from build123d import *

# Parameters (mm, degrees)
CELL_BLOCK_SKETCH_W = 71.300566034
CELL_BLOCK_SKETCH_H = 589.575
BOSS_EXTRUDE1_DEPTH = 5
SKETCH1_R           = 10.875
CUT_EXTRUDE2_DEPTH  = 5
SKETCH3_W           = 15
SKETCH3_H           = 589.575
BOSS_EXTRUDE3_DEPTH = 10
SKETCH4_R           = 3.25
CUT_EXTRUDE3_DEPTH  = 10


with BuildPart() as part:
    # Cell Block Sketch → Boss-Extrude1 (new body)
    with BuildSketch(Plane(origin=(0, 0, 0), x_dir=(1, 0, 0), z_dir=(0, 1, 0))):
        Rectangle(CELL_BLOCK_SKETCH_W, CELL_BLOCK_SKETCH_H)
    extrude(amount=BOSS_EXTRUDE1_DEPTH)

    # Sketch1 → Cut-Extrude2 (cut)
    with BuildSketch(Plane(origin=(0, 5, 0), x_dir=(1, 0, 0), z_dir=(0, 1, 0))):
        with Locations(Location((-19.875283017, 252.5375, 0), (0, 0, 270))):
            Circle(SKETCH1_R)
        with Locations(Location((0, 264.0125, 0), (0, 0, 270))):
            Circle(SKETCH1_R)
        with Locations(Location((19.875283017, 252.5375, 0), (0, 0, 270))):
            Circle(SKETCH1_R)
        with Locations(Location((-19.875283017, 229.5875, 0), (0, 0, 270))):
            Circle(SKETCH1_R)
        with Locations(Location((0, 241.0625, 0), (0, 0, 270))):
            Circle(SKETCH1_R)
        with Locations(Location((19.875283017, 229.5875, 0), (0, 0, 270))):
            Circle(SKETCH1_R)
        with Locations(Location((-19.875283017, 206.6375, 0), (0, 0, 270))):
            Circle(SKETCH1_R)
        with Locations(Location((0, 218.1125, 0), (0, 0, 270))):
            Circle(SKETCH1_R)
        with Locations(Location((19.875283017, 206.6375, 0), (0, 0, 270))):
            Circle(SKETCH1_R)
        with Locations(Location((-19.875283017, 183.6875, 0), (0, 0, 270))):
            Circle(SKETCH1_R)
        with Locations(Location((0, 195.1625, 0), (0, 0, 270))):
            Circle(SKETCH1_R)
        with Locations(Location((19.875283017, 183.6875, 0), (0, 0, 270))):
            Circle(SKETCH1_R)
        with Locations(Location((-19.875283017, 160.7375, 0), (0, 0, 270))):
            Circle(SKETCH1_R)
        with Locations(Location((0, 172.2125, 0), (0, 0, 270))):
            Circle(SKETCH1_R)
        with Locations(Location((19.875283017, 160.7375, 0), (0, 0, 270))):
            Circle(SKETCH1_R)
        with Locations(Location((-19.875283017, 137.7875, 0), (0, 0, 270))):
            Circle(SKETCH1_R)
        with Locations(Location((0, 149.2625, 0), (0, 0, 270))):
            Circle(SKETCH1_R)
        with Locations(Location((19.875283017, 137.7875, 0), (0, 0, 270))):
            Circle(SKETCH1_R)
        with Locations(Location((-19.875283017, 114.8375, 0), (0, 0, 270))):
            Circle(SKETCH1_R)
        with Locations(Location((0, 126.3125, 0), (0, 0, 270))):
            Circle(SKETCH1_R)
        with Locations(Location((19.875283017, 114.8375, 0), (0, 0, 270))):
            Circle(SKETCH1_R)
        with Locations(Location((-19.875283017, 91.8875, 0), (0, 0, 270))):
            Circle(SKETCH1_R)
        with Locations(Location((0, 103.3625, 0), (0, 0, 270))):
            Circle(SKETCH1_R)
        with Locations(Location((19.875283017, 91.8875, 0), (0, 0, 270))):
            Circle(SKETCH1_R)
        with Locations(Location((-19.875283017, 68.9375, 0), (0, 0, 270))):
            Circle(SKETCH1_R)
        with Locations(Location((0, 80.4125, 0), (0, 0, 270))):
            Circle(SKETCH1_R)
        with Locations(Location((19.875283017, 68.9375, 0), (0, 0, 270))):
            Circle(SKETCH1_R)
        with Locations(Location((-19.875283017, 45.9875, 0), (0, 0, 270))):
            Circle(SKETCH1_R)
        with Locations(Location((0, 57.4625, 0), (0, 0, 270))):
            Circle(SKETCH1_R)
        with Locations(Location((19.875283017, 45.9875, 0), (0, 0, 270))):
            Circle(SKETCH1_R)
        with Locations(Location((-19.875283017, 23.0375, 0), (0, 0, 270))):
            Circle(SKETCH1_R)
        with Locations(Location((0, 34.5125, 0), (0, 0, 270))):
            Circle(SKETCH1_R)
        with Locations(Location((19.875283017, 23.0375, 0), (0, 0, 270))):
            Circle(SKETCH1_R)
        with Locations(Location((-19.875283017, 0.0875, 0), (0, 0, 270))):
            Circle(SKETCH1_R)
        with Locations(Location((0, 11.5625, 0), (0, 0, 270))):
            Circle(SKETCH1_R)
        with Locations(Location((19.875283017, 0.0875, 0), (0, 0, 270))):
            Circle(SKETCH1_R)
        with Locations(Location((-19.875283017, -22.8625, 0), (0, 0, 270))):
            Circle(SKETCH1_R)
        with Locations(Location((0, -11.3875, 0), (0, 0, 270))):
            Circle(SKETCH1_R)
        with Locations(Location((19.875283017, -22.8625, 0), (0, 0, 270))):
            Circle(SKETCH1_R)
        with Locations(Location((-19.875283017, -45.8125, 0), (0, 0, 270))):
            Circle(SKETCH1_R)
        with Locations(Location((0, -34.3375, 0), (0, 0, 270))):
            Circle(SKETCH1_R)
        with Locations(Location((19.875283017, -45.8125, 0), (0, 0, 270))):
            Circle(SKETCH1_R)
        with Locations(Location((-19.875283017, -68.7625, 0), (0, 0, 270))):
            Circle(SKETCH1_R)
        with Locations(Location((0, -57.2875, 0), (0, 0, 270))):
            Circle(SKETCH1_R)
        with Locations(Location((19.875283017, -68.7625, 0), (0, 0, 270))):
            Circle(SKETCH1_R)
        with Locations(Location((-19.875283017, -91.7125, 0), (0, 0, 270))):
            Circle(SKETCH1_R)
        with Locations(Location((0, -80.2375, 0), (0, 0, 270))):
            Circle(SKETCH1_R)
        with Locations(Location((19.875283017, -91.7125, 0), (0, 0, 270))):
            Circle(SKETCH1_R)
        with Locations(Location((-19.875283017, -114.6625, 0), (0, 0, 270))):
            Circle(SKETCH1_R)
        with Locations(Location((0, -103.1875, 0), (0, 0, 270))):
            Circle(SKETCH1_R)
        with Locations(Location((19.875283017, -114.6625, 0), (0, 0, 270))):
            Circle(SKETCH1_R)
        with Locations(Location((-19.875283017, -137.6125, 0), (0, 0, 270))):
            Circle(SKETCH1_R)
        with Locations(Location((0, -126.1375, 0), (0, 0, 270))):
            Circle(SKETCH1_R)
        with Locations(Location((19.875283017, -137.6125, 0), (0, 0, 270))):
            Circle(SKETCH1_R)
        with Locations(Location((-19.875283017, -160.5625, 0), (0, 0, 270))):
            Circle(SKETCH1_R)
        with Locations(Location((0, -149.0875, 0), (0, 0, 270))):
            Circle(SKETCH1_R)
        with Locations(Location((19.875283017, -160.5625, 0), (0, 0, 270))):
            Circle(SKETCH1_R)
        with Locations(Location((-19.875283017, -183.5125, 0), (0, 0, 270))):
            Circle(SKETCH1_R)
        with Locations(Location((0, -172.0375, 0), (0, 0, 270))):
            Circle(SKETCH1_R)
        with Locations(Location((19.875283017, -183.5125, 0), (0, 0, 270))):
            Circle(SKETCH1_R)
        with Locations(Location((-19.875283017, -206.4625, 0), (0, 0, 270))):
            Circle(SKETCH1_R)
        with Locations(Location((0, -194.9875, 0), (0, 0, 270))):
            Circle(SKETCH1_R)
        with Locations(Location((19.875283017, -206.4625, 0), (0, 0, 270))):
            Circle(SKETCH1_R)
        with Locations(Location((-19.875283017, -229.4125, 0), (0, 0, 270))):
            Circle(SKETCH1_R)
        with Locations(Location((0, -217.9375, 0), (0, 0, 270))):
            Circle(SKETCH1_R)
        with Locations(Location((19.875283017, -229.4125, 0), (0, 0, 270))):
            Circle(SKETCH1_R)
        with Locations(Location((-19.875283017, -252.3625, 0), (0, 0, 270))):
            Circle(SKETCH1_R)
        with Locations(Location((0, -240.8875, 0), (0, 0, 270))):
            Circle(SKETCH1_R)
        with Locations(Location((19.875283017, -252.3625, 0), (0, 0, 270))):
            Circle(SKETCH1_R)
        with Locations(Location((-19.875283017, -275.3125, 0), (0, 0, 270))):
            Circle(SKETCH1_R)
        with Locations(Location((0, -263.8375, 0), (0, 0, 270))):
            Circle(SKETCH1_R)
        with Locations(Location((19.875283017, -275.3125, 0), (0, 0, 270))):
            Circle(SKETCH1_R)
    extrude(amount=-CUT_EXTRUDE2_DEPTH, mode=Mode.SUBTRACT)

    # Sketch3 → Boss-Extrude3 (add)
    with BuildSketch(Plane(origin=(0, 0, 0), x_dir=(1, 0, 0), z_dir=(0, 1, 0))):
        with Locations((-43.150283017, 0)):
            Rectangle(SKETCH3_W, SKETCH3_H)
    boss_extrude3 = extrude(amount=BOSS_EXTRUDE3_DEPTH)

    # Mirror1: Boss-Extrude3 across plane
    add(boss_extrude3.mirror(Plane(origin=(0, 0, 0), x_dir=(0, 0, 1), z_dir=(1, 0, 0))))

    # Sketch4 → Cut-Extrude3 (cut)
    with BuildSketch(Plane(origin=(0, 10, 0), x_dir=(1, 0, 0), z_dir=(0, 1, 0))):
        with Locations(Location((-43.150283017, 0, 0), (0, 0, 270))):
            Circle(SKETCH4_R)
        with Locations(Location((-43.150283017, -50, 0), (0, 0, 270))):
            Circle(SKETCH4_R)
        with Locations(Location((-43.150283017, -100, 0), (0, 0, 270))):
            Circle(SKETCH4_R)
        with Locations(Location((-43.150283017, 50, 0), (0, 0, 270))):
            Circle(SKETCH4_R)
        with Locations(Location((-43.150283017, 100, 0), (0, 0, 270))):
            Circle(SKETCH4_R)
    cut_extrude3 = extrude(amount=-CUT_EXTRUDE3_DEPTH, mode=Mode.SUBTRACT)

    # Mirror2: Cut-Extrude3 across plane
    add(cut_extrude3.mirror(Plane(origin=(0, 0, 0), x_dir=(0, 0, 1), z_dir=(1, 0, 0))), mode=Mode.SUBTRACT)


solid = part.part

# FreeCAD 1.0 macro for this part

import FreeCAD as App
import Part
import Sketcher
Q = App.Units.Quantity


def add_polygon(sketch, points):
    """Adds a closed chain of lines whose ends are joined by coincident constraints."""
    first, n = sketch.GeometryCount, len(points)
    for a, b in zip(points, points[1:] + points[:1]):
        sketch.addGeometry(Part.LineSegment(App.Vector(*a, 0), App.Vector(*b, 0)), False)
    for i in range(n):
        sketch.addConstraint(Sketcher.Constraint("Coincident", first + i, 2, first + (i + 1) % n, 1))

doc = App.newDocument("Part")
params = doc.addObject("Spreadsheet::Sheet", "Params")
for row, (alias, value) in enumerate([
    ("pad1_length", "5 mm"),
    ("sketch2_diameter", "21.75 mm"),
    ("pocket1_length", "5 mm"),
    ("sketch3_width", "15 mm"),
    ("pad2_length", "10 mm"),
    ("sketch4_diameter", "6.5 mm"),
    ("pocket2_length", "10 mm"),
], start=1):
    params.set(f"A{row}", alias)
    params.set(f"B{row}", "=" + value)
    params.setAlias(f"B{row}", alias)

body = doc.addObject("PartDesign::Body", "Body")

# Sketch on XZ plane
sketch1 = body.newObject("Sketcher::SketchObject", "Sketch")
sketch1.AttachmentSupport = (doc.getObject("XZ_Plane"), [""])
sketch1.MapMode = "FlatFace"
add_polygon(sketch1, [(-35.650283, -294.7875), (-35.650283, 294.7875), (35.650283, 294.7875), (35.650283, -294.7875)])  # lines 0-3
sketch1.addConstraint(Sketcher.Constraint("Vertical", 0))
sketch1.addConstraint(Sketcher.Constraint("Horizontal", 1))
sketch1.addConstraint(Sketcher.Constraint("Vertical", 2))
sketch1.addConstraint(Sketcher.Constraint("Horizontal", 3))
sketch1.addConstraint(Sketcher.Constraint("Symmetric", 0, 2, 2, 2, -1, 1))
sketch1.addConstraint(Sketcher.Constraint("DistanceY", 0, 1, 0, 2, Q("589.575 mm")))
sketch1.addConstraint(Sketcher.Constraint("DistanceX", 1, 1, 1, 2, Q("71.300566 mm")))
pad1 = body.newObject("PartDesign::Pad", "Pad")
pad1.Profile = sketch1
pad1.setExpression("Length", "Params.pad1_length")
pad1.Reversed = True

# Sketch on XZ plane
sketch2 = body.newObject("Sketcher::SketchObject", "Sketch001")
sketch2.AttachmentSupport = (doc.getObject("XZ_Plane"), [""])
sketch2.MapMode = "FlatFace"
sketch2.AttachmentOffset = App.Placement(App.Vector(0, 0, -5), App.Rotation())
sketch2.addGeometry(Part.Circle(App.Vector(-19.875283, -252.5375, 0), App.Vector(0, 0, 1), 10.875), False)
sketch2.addGeometry(Part.Circle(App.Vector(0, -264.0125, 0), App.Vector(0, 0, 1), 10.875), False)
sketch2.addGeometry(Part.Circle(App.Vector(19.875283, -252.5375, 0), App.Vector(0, 0, 1), 10.875), False)
sketch2.addGeometry(Part.Circle(App.Vector(-19.875283, -229.5875, 0), App.Vector(0, 0, 1), 10.875), False)
sketch2.addGeometry(Part.Circle(App.Vector(0, -241.0625, 0), App.Vector(0, 0, 1), 10.875), False)
sketch2.addGeometry(Part.Circle(App.Vector(19.875283, -229.5875, 0), App.Vector(0, 0, 1), 10.875), False)
sketch2.addGeometry(Part.Circle(App.Vector(-19.875283, -206.6375, 0), App.Vector(0, 0, 1), 10.875), False)
sketch2.addGeometry(Part.Circle(App.Vector(0, -218.1125, 0), App.Vector(0, 0, 1), 10.875), False)
sketch2.addGeometry(Part.Circle(App.Vector(19.875283, -206.6375, 0), App.Vector(0, 0, 1), 10.875), False)
sketch2.addGeometry(Part.Circle(App.Vector(-19.875283, -183.6875, 0), App.Vector(0, 0, 1), 10.875), False)
sketch2.addGeometry(Part.Circle(App.Vector(0, -195.1625, 0), App.Vector(0, 0, 1), 10.875), False)
sketch2.addGeometry(Part.Circle(App.Vector(19.875283, -183.6875, 0), App.Vector(0, 0, 1), 10.875), False)
sketch2.addGeometry(Part.Circle(App.Vector(-19.875283, -160.7375, 0), App.Vector(0, 0, 1), 10.875), False)
sketch2.addGeometry(Part.Circle(App.Vector(0, -172.2125, 0), App.Vector(0, 0, 1), 10.875), False)
sketch2.addGeometry(Part.Circle(App.Vector(19.875283, -160.7375, 0), App.Vector(0, 0, 1), 10.875), False)
sketch2.addGeometry(Part.Circle(App.Vector(-19.875283, -137.7875, 0), App.Vector(0, 0, 1), 10.875), False)
sketch2.addGeometry(Part.Circle(App.Vector(0, -149.2625, 0), App.Vector(0, 0, 1), 10.875), False)
sketch2.addGeometry(Part.Circle(App.Vector(19.875283, -137.7875, 0), App.Vector(0, 0, 1), 10.875), False)
sketch2.addGeometry(Part.Circle(App.Vector(-19.875283, -114.8375, 0), App.Vector(0, 0, 1), 10.875), False)
sketch2.addGeometry(Part.Circle(App.Vector(0, -126.3125, 0), App.Vector(0, 0, 1), 10.875), False)
sketch2.addGeometry(Part.Circle(App.Vector(19.875283, -114.8375, 0), App.Vector(0, 0, 1), 10.875), False)
sketch2.addGeometry(Part.Circle(App.Vector(-19.875283, -91.8875, 0), App.Vector(0, 0, 1), 10.875), False)
sketch2.addGeometry(Part.Circle(App.Vector(0, -103.3625, 0), App.Vector(0, 0, 1), 10.875), False)
sketch2.addGeometry(Part.Circle(App.Vector(19.875283, -91.8875, 0), App.Vector(0, 0, 1), 10.875), False)
sketch2.addGeometry(Part.Circle(App.Vector(-19.875283, -68.9375, 0), App.Vector(0, 0, 1), 10.875), False)
sketch2.addGeometry(Part.Circle(App.Vector(0, -80.4125, 0), App.Vector(0, 0, 1), 10.875), False)
sketch2.addGeometry(Part.Circle(App.Vector(19.875283, -68.9375, 0), App.Vector(0, 0, 1), 10.875), False)
sketch2.addGeometry(Part.Circle(App.Vector(-19.875283, -45.9875, 0), App.Vector(0, 0, 1), 10.875), False)
sketch2.addGeometry(Part.Circle(App.Vector(0, -57.4625, 0), App.Vector(0, 0, 1), 10.875), False)
sketch2.addGeometry(Part.Circle(App.Vector(19.875283, -45.9875, 0), App.Vector(0, 0, 1), 10.875), False)
sketch2.addGeometry(Part.Circle(App.Vector(-19.875283, -23.0375, 0), App.Vector(0, 0, 1), 10.875), False)
sketch2.addGeometry(Part.Circle(App.Vector(0, -34.5125, 0), App.Vector(0, 0, 1), 10.875), False)
sketch2.addGeometry(Part.Circle(App.Vector(19.875283, -23.0375, 0), App.Vector(0, 0, 1), 10.875), False)
sketch2.addGeometry(Part.Circle(App.Vector(-19.875283, -0.0875, 0), App.Vector(0, 0, 1), 10.875), False)
sketch2.addGeometry(Part.Circle(App.Vector(0, -11.5625, 0), App.Vector(0, 0, 1), 10.875), False)
sketch2.addGeometry(Part.Circle(App.Vector(19.875283, -0.0875, 0), App.Vector(0, 0, 1), 10.875), False)
sketch2.addGeometry(Part.Circle(App.Vector(-19.875283, 22.8625, 0), App.Vector(0, 0, 1), 10.875), False)
sketch2.addGeometry(Part.Circle(App.Vector(0, 11.3875, 0), App.Vector(0, 0, 1), 10.875), False)
sketch2.addGeometry(Part.Circle(App.Vector(19.875283, 22.8625, 0), App.Vector(0, 0, 1), 10.875), False)
sketch2.addGeometry(Part.Circle(App.Vector(-19.875283, 45.8125, 0), App.Vector(0, 0, 1), 10.875), False)
sketch2.addGeometry(Part.Circle(App.Vector(0, 34.3375, 0), App.Vector(0, 0, 1), 10.875), False)
sketch2.addGeometry(Part.Circle(App.Vector(19.875283, 45.8125, 0), App.Vector(0, 0, 1), 10.875), False)
sketch2.addGeometry(Part.Circle(App.Vector(-19.875283, 68.7625, 0), App.Vector(0, 0, 1), 10.875), False)
sketch2.addGeometry(Part.Circle(App.Vector(0, 57.2875, 0), App.Vector(0, 0, 1), 10.875), False)
sketch2.addGeometry(Part.Circle(App.Vector(19.875283, 68.7625, 0), App.Vector(0, 0, 1), 10.875), False)
sketch2.addGeometry(Part.Circle(App.Vector(-19.875283, 91.7125, 0), App.Vector(0, 0, 1), 10.875), False)
sketch2.addGeometry(Part.Circle(App.Vector(0, 80.2375, 0), App.Vector(0, 0, 1), 10.875), False)
sketch2.addGeometry(Part.Circle(App.Vector(19.875283, 91.7125, 0), App.Vector(0, 0, 1), 10.875), False)
sketch2.addGeometry(Part.Circle(App.Vector(-19.875283, 114.6625, 0), App.Vector(0, 0, 1), 10.875), False)
sketch2.addGeometry(Part.Circle(App.Vector(0, 103.1875, 0), App.Vector(0, 0, 1), 10.875), False)
sketch2.addGeometry(Part.Circle(App.Vector(19.875283, 114.6625, 0), App.Vector(0, 0, 1), 10.875), False)
sketch2.addGeometry(Part.Circle(App.Vector(-19.875283, 137.6125, 0), App.Vector(0, 0, 1), 10.875), False)
sketch2.addGeometry(Part.Circle(App.Vector(0, 126.1375, 0), App.Vector(0, 0, 1), 10.875), False)
sketch2.addGeometry(Part.Circle(App.Vector(19.875283, 137.6125, 0), App.Vector(0, 0, 1), 10.875), False)
sketch2.addGeometry(Part.Circle(App.Vector(-19.875283, 160.5625, 0), App.Vector(0, 0, 1), 10.875), False)
sketch2.addGeometry(Part.Circle(App.Vector(0, 149.0875, 0), App.Vector(0, 0, 1), 10.875), False)
sketch2.addGeometry(Part.Circle(App.Vector(19.875283, 160.5625, 0), App.Vector(0, 0, 1), 10.875), False)
sketch2.addGeometry(Part.Circle(App.Vector(-19.875283, 183.5125, 0), App.Vector(0, 0, 1), 10.875), False)
sketch2.addGeometry(Part.Circle(App.Vector(0, 172.0375, 0), App.Vector(0, 0, 1), 10.875), False)
sketch2.addGeometry(Part.Circle(App.Vector(19.875283, 183.5125, 0), App.Vector(0, 0, 1), 10.875), False)
sketch2.addGeometry(Part.Circle(App.Vector(-19.875283, 206.4625, 0), App.Vector(0, 0, 1), 10.875), False)
sketch2.addGeometry(Part.Circle(App.Vector(0, 194.9875, 0), App.Vector(0, 0, 1), 10.875), False)
sketch2.addGeometry(Part.Circle(App.Vector(19.875283, 206.4625, 0), App.Vector(0, 0, 1), 10.875), False)
sketch2.addGeometry(Part.Circle(App.Vector(-19.875283, 229.4125, 0), App.Vector(0, 0, 1), 10.875), False)
sketch2.addGeometry(Part.Circle(App.Vector(0, 217.9375, 0), App.Vector(0, 0, 1), 10.875), False)
sketch2.addGeometry(Part.Circle(App.Vector(19.875283, 229.4125, 0), App.Vector(0, 0, 1), 10.875), False)
sketch2.addGeometry(Part.Circle(App.Vector(-19.875283, 252.3625, 0), App.Vector(0, 0, 1), 10.875), False)
sketch2.addGeometry(Part.Circle(App.Vector(0, 240.8875, 0), App.Vector(0, 0, 1), 10.875), False)
sketch2.addGeometry(Part.Circle(App.Vector(19.875283, 252.3625, 0), App.Vector(0, 0, 1), 10.875), False)
sketch2.addGeometry(Part.Circle(App.Vector(-19.875283, 275.3125, 0), App.Vector(0, 0, 1), 10.875), False)
sketch2.addGeometry(Part.Circle(App.Vector(0, 263.8375, 0), App.Vector(0, 0, 1), 10.875), False)
sketch2.addGeometry(Part.Circle(App.Vector(19.875283, 275.3125, 0), App.Vector(0, 0, 1), 10.875), False)
sketch2.addConstraint(Sketcher.Constraint("Equal", 0, 1))
sketch2.addConstraint(Sketcher.Constraint("Equal", 1, 2))
sketch2.addConstraint(Sketcher.Constraint("Equal", 2, 3))
sketch2.addConstraint(Sketcher.Constraint("Equal", 3, 4))
sketch2.addConstraint(Sketcher.Constraint("Equal", 4, 5))
sketch2.addConstraint(Sketcher.Constraint("Equal", 5, 6))
sketch2.addConstraint(Sketcher.Constraint("Equal", 6, 7))
sketch2.addConstraint(Sketcher.Constraint("Equal", 7, 8))
sketch2.addConstraint(Sketcher.Constraint("Equal", 8, 9))
sketch2.addConstraint(Sketcher.Constraint("Equal", 9, 10))
sketch2.addConstraint(Sketcher.Constraint("Equal", 10, 11))
sketch2.addConstraint(Sketcher.Constraint("Equal", 11, 12))
sketch2.addConstraint(Sketcher.Constraint("Equal", 12, 13))
sketch2.addConstraint(Sketcher.Constraint("Equal", 13, 14))
sketch2.addConstraint(Sketcher.Constraint("Equal", 14, 15))
sketch2.addConstraint(Sketcher.Constraint("Equal", 15, 16))
sketch2.addConstraint(Sketcher.Constraint("Equal", 16, 17))
sketch2.addConstraint(Sketcher.Constraint("Equal", 17, 18))
sketch2.addConstraint(Sketcher.Constraint("Equal", 18, 19))
sketch2.addConstraint(Sketcher.Constraint("Equal", 19, 20))
sketch2.addConstraint(Sketcher.Constraint("Equal", 20, 21))
sketch2.addConstraint(Sketcher.Constraint("Equal", 21, 22))
sketch2.addConstraint(Sketcher.Constraint("Equal", 22, 23))
sketch2.addConstraint(Sketcher.Constraint("Equal", 23, 24))
sketch2.addConstraint(Sketcher.Constraint("Equal", 24, 25))
sketch2.addConstraint(Sketcher.Constraint("Equal", 25, 26))
sketch2.addConstraint(Sketcher.Constraint("Equal", 26, 27))
sketch2.addConstraint(Sketcher.Constraint("Equal", 27, 28))
sketch2.addConstraint(Sketcher.Constraint("Equal", 28, 29))
sketch2.addConstraint(Sketcher.Constraint("Equal", 29, 30))
sketch2.addConstraint(Sketcher.Constraint("Equal", 30, 31))
sketch2.addConstraint(Sketcher.Constraint("Equal", 31, 32))
sketch2.addConstraint(Sketcher.Constraint("Equal", 32, 33))
sketch2.addConstraint(Sketcher.Constraint("Equal", 33, 34))
sketch2.addConstraint(Sketcher.Constraint("Equal", 34, 35))
sketch2.addConstraint(Sketcher.Constraint("Equal", 35, 36))
sketch2.addConstraint(Sketcher.Constraint("Equal", 36, 37))
sketch2.addConstraint(Sketcher.Constraint("Equal", 37, 38))
sketch2.addConstraint(Sketcher.Constraint("Equal", 38, 39))
sketch2.addConstraint(Sketcher.Constraint("Equal", 39, 40))
sketch2.addConstraint(Sketcher.Constraint("Equal", 40, 41))
sketch2.addConstraint(Sketcher.Constraint("Equal", 41, 42))
sketch2.addConstraint(Sketcher.Constraint("Equal", 42, 43))
sketch2.addConstraint(Sketcher.Constraint("Equal", 43, 44))
sketch2.addConstraint(Sketcher.Constraint("Equal", 44, 45))
sketch2.addConstraint(Sketcher.Constraint("Equal", 45, 46))
sketch2.addConstraint(Sketcher.Constraint("Equal", 46, 47))
sketch2.addConstraint(Sketcher.Constraint("Equal", 47, 48))
sketch2.addConstraint(Sketcher.Constraint("Equal", 48, 49))
sketch2.addConstraint(Sketcher.Constraint("Equal", 49, 50))
sketch2.addConstraint(Sketcher.Constraint("Equal", 50, 51))
sketch2.addConstraint(Sketcher.Constraint("Equal", 51, 52))
sketch2.addConstraint(Sketcher.Constraint("Equal", 52, 53))
sketch2.addConstraint(Sketcher.Constraint("Equal", 53, 54))
sketch2.addConstraint(Sketcher.Constraint("Equal", 54, 55))
sketch2.addConstraint(Sketcher.Constraint("Equal", 55, 56))
sketch2.addConstraint(Sketcher.Constraint("Equal", 56, 57))
sketch2.addConstraint(Sketcher.Constraint("Equal", 57, 58))
sketch2.addConstraint(Sketcher.Constraint("Equal", 58, 59))
sketch2.addConstraint(Sketcher.Constraint("Equal", 59, 60))
sketch2.addConstraint(Sketcher.Constraint("Equal", 60, 61))
sketch2.addConstraint(Sketcher.Constraint("Equal", 61, 62))
sketch2.addConstraint(Sketcher.Constraint("Equal", 62, 63))
sketch2.addConstraint(Sketcher.Constraint("Equal", 63, 64))
sketch2.addConstraint(Sketcher.Constraint("Equal", 64, 65))
sketch2.addConstraint(Sketcher.Constraint("Equal", 65, 66))
sketch2.addConstraint(Sketcher.Constraint("Equal", 66, 67))
sketch2.addConstraint(Sketcher.Constraint("Equal", 67, 68))
sketch2.addConstraint(Sketcher.Constraint("Equal", 68, 69))
sketch2.addConstraint(Sketcher.Constraint("Equal", 69, 70))
sketch2.addConstraint(Sketcher.Constraint("Equal", 70, 71))
sketch2.addConstraint(Sketcher.Constraint("Symmetric", 0, 3, 2, 3, -2))
sketch2.addConstraint(Sketcher.Constraint("Symmetric", 3, 3, 5, 3, -2))
sketch2.addConstraint(Sketcher.Constraint("Symmetric", 6, 3, 8, 3, -2))
sketch2.addConstraint(Sketcher.Constraint("Symmetric", 9, 3, 11, 3, -2))
sketch2.addConstraint(Sketcher.Constraint("Symmetric", 12, 3, 14, 3, -2))
sketch2.addConstraint(Sketcher.Constraint("Symmetric", 15, 3, 17, 3, -2))
sketch2.addConstraint(Sketcher.Constraint("Symmetric", 18, 3, 20, 3, -2))
sketch2.addConstraint(Sketcher.Constraint("Symmetric", 21, 3, 23, 3, -2))
sketch2.addConstraint(Sketcher.Constraint("Symmetric", 24, 3, 26, 3, -2))
sketch2.addConstraint(Sketcher.Constraint("Symmetric", 27, 3, 29, 3, -2))
sketch2.addConstraint(Sketcher.Constraint("Symmetric", 30, 3, 32, 3, -2))
sketch2.addConstraint(Sketcher.Constraint("Symmetric", 33, 3, 35, 3, -2))
sketch2.addConstraint(Sketcher.Constraint("Symmetric", 36, 3, 38, 3, -2))
sketch2.addConstraint(Sketcher.Constraint("Symmetric", 39, 3, 41, 3, -2))
sketch2.addConstraint(Sketcher.Constraint("Symmetric", 42, 3, 44, 3, -2))
sketch2.addConstraint(Sketcher.Constraint("Symmetric", 45, 3, 47, 3, -2))
sketch2.addConstraint(Sketcher.Constraint("Symmetric", 48, 3, 50, 3, -2))
sketch2.addConstraint(Sketcher.Constraint("Symmetric", 51, 3, 53, 3, -2))
sketch2.addConstraint(Sketcher.Constraint("Symmetric", 54, 3, 56, 3, -2))
sketch2.addConstraint(Sketcher.Constraint("Symmetric", 57, 3, 59, 3, -2))
sketch2.addConstraint(Sketcher.Constraint("Symmetric", 60, 3, 62, 3, -2))
sketch2.addConstraint(Sketcher.Constraint("Symmetric", 63, 3, 65, 3, -2))
sketch2.addConstraint(Sketcher.Constraint("Symmetric", 66, 3, 68, 3, -2))
sketch2.addConstraint(Sketcher.Constraint("Symmetric", 69, 3, 71, 3, -2))
sketch2.addConstraint(Sketcher.Constraint("PointOnObject", 1, 3, -2))
sketch2.addConstraint(Sketcher.Constraint("PointOnObject", 4, 3, -2))
sketch2.addConstraint(Sketcher.Constraint("PointOnObject", 7, 3, -2))
sketch2.addConstraint(Sketcher.Constraint("PointOnObject", 10, 3, -2))
sketch2.addConstraint(Sketcher.Constraint("PointOnObject", 13, 3, -2))
sketch2.addConstraint(Sketcher.Constraint("PointOnObject", 16, 3, -2))
sketch2.addConstraint(Sketcher.Constraint("PointOnObject", 19, 3, -2))
sketch2.addConstraint(Sketcher.Constraint("PointOnObject", 22, 3, -2))
sketch2.addConstraint(Sketcher.Constraint("PointOnObject", 25, 3, -2))
sketch2.addConstraint(Sketcher.Constraint("PointOnObject", 28, 3, -2))
sketch2.addConstraint(Sketcher.Constraint("PointOnObject", 31, 3, -2))
sketch2.addConstraint(Sketcher.Constraint("PointOnObject", 34, 3, -2))
sketch2.addConstraint(Sketcher.Constraint("PointOnObject", 37, 3, -2))
sketch2.addConstraint(Sketcher.Constraint("PointOnObject", 40, 3, -2))
sketch2.addConstraint(Sketcher.Constraint("PointOnObject", 43, 3, -2))
sketch2.addConstraint(Sketcher.Constraint("PointOnObject", 46, 3, -2))
sketch2.addConstraint(Sketcher.Constraint("PointOnObject", 49, 3, -2))
sketch2.addConstraint(Sketcher.Constraint("PointOnObject", 52, 3, -2))
sketch2.addConstraint(Sketcher.Constraint("PointOnObject", 55, 3, -2))
sketch2.addConstraint(Sketcher.Constraint("PointOnObject", 58, 3, -2))
sketch2.addConstraint(Sketcher.Constraint("PointOnObject", 61, 3, -2))
sketch2.addConstraint(Sketcher.Constraint("PointOnObject", 64, 3, -2))
sketch2.addConstraint(Sketcher.Constraint("PointOnObject", 67, 3, -2))
sketch2.addConstraint(Sketcher.Constraint("PointOnObject", 70, 3, -2))
sketch2.addConstraint(Sketcher.Constraint("Vertical", 0, 3, 3, 3))
sketch2.addConstraint(Sketcher.Constraint("Vertical", 3, 3, 6, 3))
sketch2.addConstraint(Sketcher.Constraint("Vertical", 6, 3, 9, 3))
sketch2.addConstraint(Sketcher.Constraint("Vertical", 9, 3, 12, 3))
sketch2.addConstraint(Sketcher.Constraint("Vertical", 12, 3, 15, 3))
sketch2.addConstraint(Sketcher.Constraint("Vertical", 15, 3, 18, 3))
sketch2.addConstraint(Sketcher.Constraint("Vertical", 18, 3, 21, 3))
sketch2.addConstraint(Sketcher.Constraint("Vertical", 21, 3, 24, 3))
sketch2.addConstraint(Sketcher.Constraint("Vertical", 24, 3, 27, 3))
sketch2.addConstraint(Sketcher.Constraint("Vertical", 27, 3, 30, 3))
sketch2.addConstraint(Sketcher.Constraint("Vertical", 30, 3, 33, 3))
sketch2.addConstraint(Sketcher.Constraint("Vertical", 33, 3, 36, 3))
sketch2.addConstraint(Sketcher.Constraint("Vertical", 36, 3, 39, 3))
sketch2.addConstraint(Sketcher.Constraint("Vertical", 39, 3, 42, 3))
sketch2.addConstraint(Sketcher.Constraint("Vertical", 42, 3, 45, 3))
sketch2.addConstraint(Sketcher.Constraint("Vertical", 45, 3, 48, 3))
sketch2.addConstraint(Sketcher.Constraint("Vertical", 48, 3, 51, 3))
sketch2.addConstraint(Sketcher.Constraint("Vertical", 51, 3, 54, 3))
sketch2.addConstraint(Sketcher.Constraint("Vertical", 54, 3, 57, 3))
sketch2.addConstraint(Sketcher.Constraint("Vertical", 57, 3, 60, 3))
sketch2.addConstraint(Sketcher.Constraint("Vertical", 60, 3, 63, 3))
sketch2.addConstraint(Sketcher.Constraint("Vertical", 63, 3, 66, 3))
sketch2.addConstraint(Sketcher.Constraint("Vertical", 66, 3, 69, 3))
sketch2.addConstraint(Sketcher.Constraint("Diameter", 0, Q("21.75 mm")))
sketch2.addConstraint(Sketcher.Constraint("DistanceY", 0, 3, -1, 1, Q("252.5375 mm")))
sketch2.addConstraint(Sketcher.Constraint("DistanceY", 1, 3, -1, 1, Q("264.0125 mm")))
sketch2.addConstraint(Sketcher.Constraint("DistanceY", 3, 3, -1, 1, Q("229.5875 mm")))
sketch2.addConstraint(Sketcher.Constraint("DistanceY", 4, 3, -1, 1, Q("241.0625 mm")))
sketch2.addConstraint(Sketcher.Constraint("DistanceY", 6, 3, -1, 1, Q("206.6375 mm")))
sketch2.addConstraint(Sketcher.Constraint("DistanceY", 7, 3, -1, 1, Q("218.1125 mm")))
sketch2.addConstraint(Sketcher.Constraint("DistanceY", 9, 3, -1, 1, Q("183.6875 mm")))
sketch2.addConstraint(Sketcher.Constraint("DistanceY", 10, 3, -1, 1, Q("195.1625 mm")))
sketch2.addConstraint(Sketcher.Constraint("DistanceY", 12, 3, -1, 1, Q("160.7375 mm")))
sketch2.addConstraint(Sketcher.Constraint("DistanceY", 13, 3, -1, 1, Q("172.2125 mm")))
sketch2.addConstraint(Sketcher.Constraint("DistanceY", 15, 3, -1, 1, Q("137.7875 mm")))
sketch2.addConstraint(Sketcher.Constraint("DistanceY", 16, 3, -1, 1, Q("149.2625 mm")))
sketch2.addConstraint(Sketcher.Constraint("DistanceY", 18, 3, -1, 1, Q("114.8375 mm")))
sketch2.addConstraint(Sketcher.Constraint("DistanceY", 19, 3, -1, 1, Q("126.3125 mm")))
sketch2.addConstraint(Sketcher.Constraint("DistanceY", 21, 3, -1, 1, Q("91.8875 mm")))
sketch2.addConstraint(Sketcher.Constraint("DistanceY", 22, 3, -1, 1, Q("103.3625 mm")))
sketch2.addConstraint(Sketcher.Constraint("DistanceY", 24, 3, -1, 1, Q("68.9375 mm")))
sketch2.addConstraint(Sketcher.Constraint("DistanceY", 25, 3, -1, 1, Q("80.4125 mm")))
sketch2.addConstraint(Sketcher.Constraint("DistanceY", 27, 3, -1, 1, Q("45.9875 mm")))
sketch2.addConstraint(Sketcher.Constraint("DistanceY", 28, 3, -1, 1, Q("57.4625 mm")))
sketch2.addConstraint(Sketcher.Constraint("DistanceY", 30, 3, -1, 1, Q("23.0375 mm")))
sketch2.addConstraint(Sketcher.Constraint("DistanceY", 31, 3, -1, 1, Q("34.5125 mm")))
sketch2.addConstraint(Sketcher.Constraint("DistanceY", 33, 3, -1, 1, Q("0.0875 mm")))
sketch2.addConstraint(Sketcher.Constraint("DistanceY", 34, 3, -1, 1, Q("11.5625 mm")))
sketch2.addConstraint(Sketcher.Constraint("DistanceY", -1, 1, 36, 3, Q("22.8625 mm")))
sketch2.addConstraint(Sketcher.Constraint("DistanceY", -1, 1, 37, 3, Q("11.3875 mm")))
sketch2.addConstraint(Sketcher.Constraint("DistanceY", -1, 1, 39, 3, Q("45.8125 mm")))
sketch2.addConstraint(Sketcher.Constraint("DistanceY", -1, 1, 40, 3, Q("34.3375 mm")))
sketch2.addConstraint(Sketcher.Constraint("DistanceY", -1, 1, 42, 3, Q("68.7625 mm")))
sketch2.addConstraint(Sketcher.Constraint("DistanceY", -1, 1, 43, 3, Q("57.2875 mm")))
sketch2.addConstraint(Sketcher.Constraint("DistanceY", -1, 1, 45, 3, Q("91.7125 mm")))
sketch2.addConstraint(Sketcher.Constraint("DistanceY", -1, 1, 46, 3, Q("80.2375 mm")))
sketch2.addConstraint(Sketcher.Constraint("DistanceY", -1, 1, 48, 3, Q("114.6625 mm")))
sketch2.addConstraint(Sketcher.Constraint("DistanceY", -1, 1, 49, 3, Q("103.1875 mm")))
sketch2.addConstraint(Sketcher.Constraint("DistanceY", -1, 1, 51, 3, Q("137.6125 mm")))
sketch2.addConstraint(Sketcher.Constraint("DistanceY", -1, 1, 52, 3, Q("126.1375 mm")))
sketch2.addConstraint(Sketcher.Constraint("DistanceY", -1, 1, 54, 3, Q("160.5625 mm")))
sketch2.addConstraint(Sketcher.Constraint("DistanceY", -1, 1, 55, 3, Q("149.0875 mm")))
sketch2.addConstraint(Sketcher.Constraint("DistanceY", -1, 1, 57, 3, Q("183.5125 mm")))
sketch2.addConstraint(Sketcher.Constraint("DistanceY", -1, 1, 58, 3, Q("172.0375 mm")))
sketch2.addConstraint(Sketcher.Constraint("DistanceY", -1, 1, 60, 3, Q("206.4625 mm")))
sketch2.addConstraint(Sketcher.Constraint("DistanceY", -1, 1, 61, 3, Q("194.9875 mm")))
sketch2.addConstraint(Sketcher.Constraint("DistanceY", -1, 1, 63, 3, Q("229.4125 mm")))
sketch2.addConstraint(Sketcher.Constraint("DistanceY", -1, 1, 64, 3, Q("217.9375 mm")))
sketch2.addConstraint(Sketcher.Constraint("DistanceY", -1, 1, 66, 3, Q("252.3625 mm")))
sketch2.addConstraint(Sketcher.Constraint("DistanceY", -1, 1, 67, 3, Q("240.8875 mm")))
sketch2.addConstraint(Sketcher.Constraint("DistanceY", -1, 1, 69, 3, Q("275.3125 mm")))
sketch2.addConstraint(Sketcher.Constraint("DistanceY", -1, 1, 70, 3, Q("263.8375 mm")))
sketch2.addConstraint(Sketcher.Constraint("DistanceX", 0, 3, -1, 1, Q("19.875283 mm")))
sketch2.setExpression("Constraints[142]", "Params.sketch2_diameter")
pocket1 = body.newObject("PartDesign::Pocket", "Pocket")
pocket1.Profile = sketch2
pocket1.setExpression("Length", "Params.pocket1_length")
pocket1.Reversed = True

# Sketch on XZ plane
sketch3 = body.newObject("Sketcher::SketchObject", "Sketch002")
sketch3.AttachmentSupport = (doc.getObject("XZ_Plane"), [""])
sketch3.MapMode = "FlatFace"
add_polygon(sketch3, [(-50.650283, -294.7875), (-50.650283, 294.7875), (-35.650283, 294.7875), (-35.650283, -294.7875)])  # lines 0-3
sketch3.addConstraint(Sketcher.Constraint("Vertical", 0))
sketch3.addConstraint(Sketcher.Constraint("Horizontal", 1))
sketch3.addConstraint(Sketcher.Constraint("Vertical", 2))
sketch3.addConstraint(Sketcher.Constraint("Horizontal", 3))
sketch3.addConstraint(Sketcher.Constraint("DistanceX", 1, 1, 1, 2, Q("15 mm")))
sketch3.addConstraint(Sketcher.Constraint("DistanceY", 0, 1, 0, 2, Q("589.575 mm")))
sketch3.addConstraint(Sketcher.Constraint("DistanceY", -1, 1, 0, 2, Q("294.7875 mm")))
sketch3.addConstraint(Sketcher.Constraint("DistanceX", 0, 2, -1, 1, Q("50.650283 mm")))
sketch3.setExpression("Constraints[8]", "Params.sketch3_width")
pad2 = body.newObject("PartDesign::Pad", "Pad001")
pad2.Profile = sketch3
pad2.setExpression("Length", "Params.pad2_length")
pad2.Reversed = True
doc.recompute()

mirrored = body.newObject("PartDesign::Mirrored", "Mirrored")
mirrored.Originals = [pad2]
mirrored.MirrorPlane = (doc.getObject("YZ_Plane"), [""])
body.Tip = mirrored

# Sketch on XZ plane
sketch4 = body.newObject("Sketcher::SketchObject", "Sketch003")
sketch4.AttachmentSupport = (doc.getObject("XZ_Plane"), [""])
sketch4.MapMode = "FlatFace"
sketch4.AttachmentOffset = App.Placement(App.Vector(0, 0, -10), App.Rotation())
sketch4.addGeometry(Part.Circle(App.Vector(-43.150283, 0, 0), App.Vector(0, 0, 1), 3.25), False)
sketch4.addGeometry(Part.Circle(App.Vector(-43.150283, 50, 0), App.Vector(0, 0, 1), 3.25), False)
sketch4.addGeometry(Part.Circle(App.Vector(-43.150283, 100, 0), App.Vector(0, 0, 1), 3.25), False)
sketch4.addGeometry(Part.Circle(App.Vector(-43.150283, -50, 0), App.Vector(0, 0, 1), 3.25), False)
sketch4.addGeometry(Part.Circle(App.Vector(-43.150283, -100, 0), App.Vector(0, 0, 1), 3.25), False)
sketch4.addConstraint(Sketcher.Constraint("Equal", 0, 1))
sketch4.addConstraint(Sketcher.Constraint("Equal", 1, 2))
sketch4.addConstraint(Sketcher.Constraint("Equal", 2, 3))
sketch4.addConstraint(Sketcher.Constraint("Equal", 3, 4))
sketch4.addConstraint(Sketcher.Constraint("Symmetric", 1, 3, 3, 3, -1))
sketch4.addConstraint(Sketcher.Constraint("Symmetric", 2, 3, 4, 3, -1))
sketch4.addConstraint(Sketcher.Constraint("PointOnObject", 0, 3, -1))
sketch4.addConstraint(Sketcher.Constraint("Vertical", 0, 3, 1, 3))
sketch4.addConstraint(Sketcher.Constraint("Vertical", 1, 3, 2, 3))
sketch4.addConstraint(Sketcher.Constraint("Diameter", 0, Q("6.5 mm")))
sketch4.addConstraint(Sketcher.Constraint("DistanceY", -1, 1, 1, 3, Q("50 mm")))
sketch4.addConstraint(Sketcher.Constraint("DistanceY", -1, 1, 2, 3, Q("100 mm")))
sketch4.addConstraint(Sketcher.Constraint("DistanceX", 0, 3, -1, 1, Q("43.150283 mm")))
sketch4.setExpression("Constraints[9]", "Params.sketch4_diameter")
pocket2 = body.newObject("PartDesign::Pocket", "Pocket001")
pocket2.Profile = sketch4
pocket2.setExpression("Length", "Params.pocket2_length")
pocket2.Reversed = True
doc.recompute()

mirrored2 = body.newObject("PartDesign::Mirrored", "Mirrored001")
mirrored2.Originals = [pocket2]
mirrored2.MirrorPlane = (doc.getObject("YZ_Plane"), [""])
body.Tip = mirrored2

doc.recompute()
